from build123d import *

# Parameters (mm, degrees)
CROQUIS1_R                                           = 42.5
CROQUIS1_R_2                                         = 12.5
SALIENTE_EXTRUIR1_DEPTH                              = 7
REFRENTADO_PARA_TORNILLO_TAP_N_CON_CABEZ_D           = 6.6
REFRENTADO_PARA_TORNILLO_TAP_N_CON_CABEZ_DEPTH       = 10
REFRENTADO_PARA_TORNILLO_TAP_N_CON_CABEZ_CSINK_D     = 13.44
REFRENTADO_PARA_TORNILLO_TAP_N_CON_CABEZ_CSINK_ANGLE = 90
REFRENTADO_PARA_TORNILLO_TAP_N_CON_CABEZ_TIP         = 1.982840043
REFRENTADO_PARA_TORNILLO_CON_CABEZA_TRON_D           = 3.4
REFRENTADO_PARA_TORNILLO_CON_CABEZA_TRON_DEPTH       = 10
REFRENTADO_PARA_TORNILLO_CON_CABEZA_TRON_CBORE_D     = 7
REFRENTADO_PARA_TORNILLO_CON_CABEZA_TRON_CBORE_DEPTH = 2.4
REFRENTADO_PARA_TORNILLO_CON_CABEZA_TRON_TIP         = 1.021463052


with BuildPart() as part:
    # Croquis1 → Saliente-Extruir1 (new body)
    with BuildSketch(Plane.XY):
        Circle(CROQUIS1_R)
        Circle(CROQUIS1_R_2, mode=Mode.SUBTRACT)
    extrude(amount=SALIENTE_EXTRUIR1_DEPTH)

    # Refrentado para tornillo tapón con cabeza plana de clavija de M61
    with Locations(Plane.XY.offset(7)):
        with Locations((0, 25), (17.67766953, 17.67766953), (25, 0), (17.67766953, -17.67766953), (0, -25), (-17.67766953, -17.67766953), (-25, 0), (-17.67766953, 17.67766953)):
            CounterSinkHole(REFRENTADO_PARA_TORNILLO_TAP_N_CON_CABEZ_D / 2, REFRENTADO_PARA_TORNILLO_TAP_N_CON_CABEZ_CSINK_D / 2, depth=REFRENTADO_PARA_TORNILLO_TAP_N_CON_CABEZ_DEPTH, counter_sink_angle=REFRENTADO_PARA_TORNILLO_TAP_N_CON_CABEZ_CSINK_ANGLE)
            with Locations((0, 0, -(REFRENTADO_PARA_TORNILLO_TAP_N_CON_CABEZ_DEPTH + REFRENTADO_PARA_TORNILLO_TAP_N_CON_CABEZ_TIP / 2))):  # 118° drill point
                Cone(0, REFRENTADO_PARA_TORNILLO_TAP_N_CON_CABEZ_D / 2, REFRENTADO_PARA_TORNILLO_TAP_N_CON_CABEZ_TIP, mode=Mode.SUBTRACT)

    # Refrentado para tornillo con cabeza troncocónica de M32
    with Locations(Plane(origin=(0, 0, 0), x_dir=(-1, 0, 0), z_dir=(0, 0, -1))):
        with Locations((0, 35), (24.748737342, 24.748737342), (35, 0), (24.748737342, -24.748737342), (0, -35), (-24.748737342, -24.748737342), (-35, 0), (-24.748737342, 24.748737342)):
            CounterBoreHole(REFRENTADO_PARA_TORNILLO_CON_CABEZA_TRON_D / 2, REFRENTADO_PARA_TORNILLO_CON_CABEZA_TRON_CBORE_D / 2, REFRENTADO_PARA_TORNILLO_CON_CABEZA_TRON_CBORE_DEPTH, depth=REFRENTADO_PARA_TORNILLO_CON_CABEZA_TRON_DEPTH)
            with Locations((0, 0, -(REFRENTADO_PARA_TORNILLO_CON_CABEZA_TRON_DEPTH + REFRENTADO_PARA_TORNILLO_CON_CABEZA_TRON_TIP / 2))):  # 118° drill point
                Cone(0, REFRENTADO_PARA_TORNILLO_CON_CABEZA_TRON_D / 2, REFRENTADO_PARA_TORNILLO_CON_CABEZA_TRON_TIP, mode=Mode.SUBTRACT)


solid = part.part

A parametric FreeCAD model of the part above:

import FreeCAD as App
import Part
import Sketcher
from FreeCAD import Vector
Q = App.Units.Quantity

doc = App.newDocument("Part")
params = doc.addObject("Spreadsheet::Sheet", "Params")
for row, (alias, value) in enumerate([
    ("sketch1_diameter", "85 mm"),
    ("sketch1_diameter2", "25 mm"),
    ("pad1_length", "7 mm"),
    ("sketch2_diameter", "6.6 mm"),
    ("hole_diameter", "6.6 mm"),
    ("hole_depth", "10 mm"),
    ("hole_csink_diameter", "13.44 mm"),
    ("sketch3_diameter", "3.4 mm"),
    ("hole2_diameter", "3.4 mm"),
    ("hole2_depth", "10 mm"),
    ("hole2_cbore_diameter", "7 mm"),
    ("hole2_cbore_depth", "2.4 mm"),
], start=1):
    params.set(f"A{row}", alias)
    params.set(f"B{row}", "=" + value)
    params.setAlias(f"B{row}", alias)

body = doc.addObject("PartDesign::Body", "Body")

# Sketch on XY plane
sketch1 = body.newObject("Sketcher::SketchObject", "Sketch")
sketch1.AttachmentSupport = (doc.getObject("XY_Plane"), [""])
sketch1.MapMode = "FlatFace"
sketch1.addGeometry(Part.Circle(Vector(0, 0, 0), Vector(0, 0, 1), 42.5), False)
sketch1.addGeometry(Part.Circle(Vector(0, 0, 0), Vector(0, 0, 1), 12.5), False)
sketch1.addConstraint(Sketcher.Constraint("Coincident", 0, 3, -1, 1))
sketch1.addConstraint(Sketcher.Constraint("Coincident", 1, 3, -1, 1))
sketch1.addConstraint(Sketcher.Constraint("Diameter", 0, Q("85 mm")))
sketch1.addConstraint(Sketcher.Constraint("Diameter", 1, Q("25 mm")))
sketch1.setExpression("Constraints[2]", "Params.sketch1_diameter")
sketch1.setExpression("Constraints[3]", "Params.sketch1_diameter2")
pad1 = body.newObject("PartDesign::Pad", "Pad")
pad1.Profile = sketch1
pad1.setExpression("Length", "Params.pad1_length")

# Sketch on XY plane
sketch2 = body.newObject("Sketcher::SketchObject", "Sketch001")
sketch2.AttachmentSupport = (doc.getObject("XY_Plane"), [""])
sketch2.MapMode = "FlatFace"
sketch2.AttachmentOffset = App.Placement(Vector(0, 0, 7), App.Rotation())
sketch2.addGeometry(Part.Circle(Vector(0, 25, 0), Vector(0, 0, 1), 3.3), False)
sketch2.addGeometry(Part.Circle(Vector(17.67767, 17.67767, 0), Vector(0, 0, 1), 3.3), False)
sketch2.addGeometry(Part.Circle(Vector(25, 0, 0), Vector(0, 0, 1), 3.3), False)
sketch2.addGeometry(Part.Circle(Vector(17.67767, -17.67767, 0), Vector(0, 0, 1), 3.3), False)
sketch2.addGeometry(Part.Circle(Vector(0, -25, 0), Vector(0, 0, 1), 3.3), False)
sketch2.addGeometry(Part.Circle(Vector(-17.67767, -17.67767, 0), Vector(0, 0, 1), 3.3), False)
sketch2.addGeometry(Part.Circle(Vector(-25, 0, 0), Vector(0, 0, 1), 3.3), False)
sketch2.addGeometry(Part.Circle(Vector(-17.67767, 17.67767, 0), Vector(0, 0, 1), 3.3), False)
sketch2.addConstraint(Sketcher.Constraint("Equal", 0, 1))
sketch2.addConstraint(Sketcher.Constraint("Equal", 1, 2))
sketch2.addConstraint(Sketcher.Constraint("Equal", 2, 3))
sketch2.addConstraint(Sketcher.Constraint("Equal", 3, 4))
sketch2.addConstraint(Sketcher.Constraint("Equal", 4, 5))
sketch2.addConstraint(Sketcher.Constraint("Equal", 5, 6))
sketch2.addConstraint(Sketcher.Constraint("Equal", 6, 7))
sketch2.addConstraint(Sketcher.Constraint("Symmetric", 0, 3, 4, 3, -1, 1))
sketch2.addConstraint(Sketcher.Constraint("Symmetric", 1, 3, 5, 3, -1, 1))
sketch2.addConstraint(Sketcher.Constraint("Symmetric", 2, 3, 6, 3, -1, 1))
sketch2.addConstraint(Sketcher.Constraint("Symmetric", 3, 3, 7, 3, -1, 1))
sketch2.addConstraint(Sketcher.Constraint("Symmetric", 3, 3, 5, 3, -2))
sketch2.addConstraint(Sketcher.Constraint("PointOnObject", 0, 3, -2))
sketch2.addConstraint(Sketcher.Constraint("PointOnObject", 2, 3, -1))
sketch2.addConstraint(Sketcher.Constraint("Diameter", 0, Q("6.6 mm")))
sketch2.addConstraint(Sketcher.Constraint("DistanceY", -1, 1, 0, 3, Q("25 mm")))
sketch2.addConstraint(Sketcher.Constraint("DistanceX", -1, 1, 2, 3, Q("25 mm")))
sketch2.addConstraint(Sketcher.Constraint("DistanceX", -1, 1, 1, 3, Q("17.67767 mm")))
sketch2.addConstraint(Sketcher.Constraint("DistanceY", -1, 1, 1, 3, Q("17.67767 mm")))
sketch2.setExpression("Constraints[14]", "Params.sketch2_diameter")
doc.recompute()
hole = body.newObject("PartDesign::Hole", "Hole")
hole.Profile = sketch2
hole.ThreadType = "None"
hole.setExpression("Diameter", "Params.hole_diameter")
hole.DepthType = "Dimension"
hole.setExpression("Depth", "Params.hole_depth")
hole.DrillPoint = "Angled"
hole.DrillPointAngle = 118
hole.HoleCutType = "Countersink"
hole.setExpression("HoleCutDiameter", "Params.hole_csink_diameter")
hole.HoleCutCountersinkAngle = 90

# Sketch on XY plane
sketch3 = body.newObject("Sketcher::SketchObject", "Sketch002")
sketch3.AttachmentSupport = (doc.getObject("XY_Plane"), [""])
sketch3.MapMode = "FlatFace"
sketch3.addGeometry(Part.Circle(Vector(0, 35, 0), Vector(0, 0, 1), 1.7), False)
sketch3.addGeometry(Part.Circle(Vector(-24.748737, 24.748737, 0), Vector(0, 0, 1), 1.7), False)
sketch3.addGeometry(Part.Circle(Vector(-35, 0, 0), Vector(0, 0, 1), 1.7), False)
sketch3.addGeometry(Part.Circle(Vector(-24.748737, -24.748737, 0), Vector(0, 0, 1), 1.7), False)
sketch3.addGeometry(Part.Circle(Vector(0, -35, 0), Vector(0, 0, 1), 1.7), False)
sketch3.addGeometry(Part.Circle(Vector(24.748737, -24.748737, 0), Vector(0, 0, 1), 1.7), False)
sketch3.addGeometry(Part.Circle(Vector(35, 0, 0), Vector(0, 0, 1), 1.7), False)
sketch3.addGeometry(Part.Circle(Vector(24.748737, 24.748737, 0), Vector(0, 0, 1), 1.7), False)
sketch3.addConstraint(Sketcher.Constraint("Equal", 0, 1))
sketch3.addConstraint(Sketcher.Constraint("Equal", 1, 2))
sketch3.addConstraint(Sketcher.Constraint("Equal", 2, 3))
sketch3.addConstraint(Sketcher.Constraint("Equal", 3, 4))
sketch3.addConstraint(Sketcher.Constraint("Equal", 4, 5))
sketch3.addConstraint(Sketcher.Constraint("Equal", 5, 6))
sketch3.addConstraint(Sketcher.Constraint("Equal", 6, 7))
sketch3.addConstraint(Sketcher.Constraint("Symmetric", 0, 3, 4, 3, -1, 1))
sketch3.addConstraint(Sketcher.Constraint("Symmetric", 1, 3, 5, 3, -1, 1))
sketch3.addConstraint(Sketcher.Constraint("Symmetric", 2, 3, 6, 3, -1, 1))
sketch3.addConstraint(Sketcher.Constraint("Symmetric", 3, 3, 7, 3, -1, 1))
sketch3.addConstraint(Sketcher.Constraint("Symmetric", 3, 3, 5, 3, -2))
sketch3.addConstraint(Sketcher.Constraint("PointOnObject", 0, 3, -2))
sketch3.addConstraint(Sketcher.Constraint("PointOnObject", 2, 3, -1))
sketch3.addConstraint(Sketcher.Constraint("Diameter", 0, Q("3.4 mm")))
sketch3.addConstraint(Sketcher.Constraint("DistanceY", -1, 1, 0, 3, Q("35 mm")))
sketch3.addConstraint(Sketcher.Constraint("DistanceX", 2, 3, -1, 1, Q("35 mm")))
sketch3.addConstraint(Sketcher.Constraint("DistanceX", 1, 3, -1, 1, Q("24.748737 mm")))
sketch3.addConstraint(Sketcher.Constraint("DistanceY", -1, 1, 1, 3, Q("24.748737 mm")))
sketch3.setExpression("Constraints[14]", "Params.sketch3_diameter")
doc.recompute()
hole2 = body.newObject("PartDesign::Hole", "Hole001")
hole2.Profile = sketch3
hole2.ThreadType = "None"
hole2.setExpression("Diameter", "Params.hole2_diameter")
hole2.DepthType = "Dimension"
hole2.setExpression("Depth", "Params.hole2_depth")
hole2.DrillPoint = "Angled"
hole2.DrillPointAngle = 118
hole2.HoleCutType = "Counterbore"
hole2.setExpression("HoleCutDiameter", "Params.hole2_cbore_diameter")
hole2.setExpression("HoleCutDepth", "Params.hole2_cbore_depth")
hole2.Reversed = True

doc.recompute()
